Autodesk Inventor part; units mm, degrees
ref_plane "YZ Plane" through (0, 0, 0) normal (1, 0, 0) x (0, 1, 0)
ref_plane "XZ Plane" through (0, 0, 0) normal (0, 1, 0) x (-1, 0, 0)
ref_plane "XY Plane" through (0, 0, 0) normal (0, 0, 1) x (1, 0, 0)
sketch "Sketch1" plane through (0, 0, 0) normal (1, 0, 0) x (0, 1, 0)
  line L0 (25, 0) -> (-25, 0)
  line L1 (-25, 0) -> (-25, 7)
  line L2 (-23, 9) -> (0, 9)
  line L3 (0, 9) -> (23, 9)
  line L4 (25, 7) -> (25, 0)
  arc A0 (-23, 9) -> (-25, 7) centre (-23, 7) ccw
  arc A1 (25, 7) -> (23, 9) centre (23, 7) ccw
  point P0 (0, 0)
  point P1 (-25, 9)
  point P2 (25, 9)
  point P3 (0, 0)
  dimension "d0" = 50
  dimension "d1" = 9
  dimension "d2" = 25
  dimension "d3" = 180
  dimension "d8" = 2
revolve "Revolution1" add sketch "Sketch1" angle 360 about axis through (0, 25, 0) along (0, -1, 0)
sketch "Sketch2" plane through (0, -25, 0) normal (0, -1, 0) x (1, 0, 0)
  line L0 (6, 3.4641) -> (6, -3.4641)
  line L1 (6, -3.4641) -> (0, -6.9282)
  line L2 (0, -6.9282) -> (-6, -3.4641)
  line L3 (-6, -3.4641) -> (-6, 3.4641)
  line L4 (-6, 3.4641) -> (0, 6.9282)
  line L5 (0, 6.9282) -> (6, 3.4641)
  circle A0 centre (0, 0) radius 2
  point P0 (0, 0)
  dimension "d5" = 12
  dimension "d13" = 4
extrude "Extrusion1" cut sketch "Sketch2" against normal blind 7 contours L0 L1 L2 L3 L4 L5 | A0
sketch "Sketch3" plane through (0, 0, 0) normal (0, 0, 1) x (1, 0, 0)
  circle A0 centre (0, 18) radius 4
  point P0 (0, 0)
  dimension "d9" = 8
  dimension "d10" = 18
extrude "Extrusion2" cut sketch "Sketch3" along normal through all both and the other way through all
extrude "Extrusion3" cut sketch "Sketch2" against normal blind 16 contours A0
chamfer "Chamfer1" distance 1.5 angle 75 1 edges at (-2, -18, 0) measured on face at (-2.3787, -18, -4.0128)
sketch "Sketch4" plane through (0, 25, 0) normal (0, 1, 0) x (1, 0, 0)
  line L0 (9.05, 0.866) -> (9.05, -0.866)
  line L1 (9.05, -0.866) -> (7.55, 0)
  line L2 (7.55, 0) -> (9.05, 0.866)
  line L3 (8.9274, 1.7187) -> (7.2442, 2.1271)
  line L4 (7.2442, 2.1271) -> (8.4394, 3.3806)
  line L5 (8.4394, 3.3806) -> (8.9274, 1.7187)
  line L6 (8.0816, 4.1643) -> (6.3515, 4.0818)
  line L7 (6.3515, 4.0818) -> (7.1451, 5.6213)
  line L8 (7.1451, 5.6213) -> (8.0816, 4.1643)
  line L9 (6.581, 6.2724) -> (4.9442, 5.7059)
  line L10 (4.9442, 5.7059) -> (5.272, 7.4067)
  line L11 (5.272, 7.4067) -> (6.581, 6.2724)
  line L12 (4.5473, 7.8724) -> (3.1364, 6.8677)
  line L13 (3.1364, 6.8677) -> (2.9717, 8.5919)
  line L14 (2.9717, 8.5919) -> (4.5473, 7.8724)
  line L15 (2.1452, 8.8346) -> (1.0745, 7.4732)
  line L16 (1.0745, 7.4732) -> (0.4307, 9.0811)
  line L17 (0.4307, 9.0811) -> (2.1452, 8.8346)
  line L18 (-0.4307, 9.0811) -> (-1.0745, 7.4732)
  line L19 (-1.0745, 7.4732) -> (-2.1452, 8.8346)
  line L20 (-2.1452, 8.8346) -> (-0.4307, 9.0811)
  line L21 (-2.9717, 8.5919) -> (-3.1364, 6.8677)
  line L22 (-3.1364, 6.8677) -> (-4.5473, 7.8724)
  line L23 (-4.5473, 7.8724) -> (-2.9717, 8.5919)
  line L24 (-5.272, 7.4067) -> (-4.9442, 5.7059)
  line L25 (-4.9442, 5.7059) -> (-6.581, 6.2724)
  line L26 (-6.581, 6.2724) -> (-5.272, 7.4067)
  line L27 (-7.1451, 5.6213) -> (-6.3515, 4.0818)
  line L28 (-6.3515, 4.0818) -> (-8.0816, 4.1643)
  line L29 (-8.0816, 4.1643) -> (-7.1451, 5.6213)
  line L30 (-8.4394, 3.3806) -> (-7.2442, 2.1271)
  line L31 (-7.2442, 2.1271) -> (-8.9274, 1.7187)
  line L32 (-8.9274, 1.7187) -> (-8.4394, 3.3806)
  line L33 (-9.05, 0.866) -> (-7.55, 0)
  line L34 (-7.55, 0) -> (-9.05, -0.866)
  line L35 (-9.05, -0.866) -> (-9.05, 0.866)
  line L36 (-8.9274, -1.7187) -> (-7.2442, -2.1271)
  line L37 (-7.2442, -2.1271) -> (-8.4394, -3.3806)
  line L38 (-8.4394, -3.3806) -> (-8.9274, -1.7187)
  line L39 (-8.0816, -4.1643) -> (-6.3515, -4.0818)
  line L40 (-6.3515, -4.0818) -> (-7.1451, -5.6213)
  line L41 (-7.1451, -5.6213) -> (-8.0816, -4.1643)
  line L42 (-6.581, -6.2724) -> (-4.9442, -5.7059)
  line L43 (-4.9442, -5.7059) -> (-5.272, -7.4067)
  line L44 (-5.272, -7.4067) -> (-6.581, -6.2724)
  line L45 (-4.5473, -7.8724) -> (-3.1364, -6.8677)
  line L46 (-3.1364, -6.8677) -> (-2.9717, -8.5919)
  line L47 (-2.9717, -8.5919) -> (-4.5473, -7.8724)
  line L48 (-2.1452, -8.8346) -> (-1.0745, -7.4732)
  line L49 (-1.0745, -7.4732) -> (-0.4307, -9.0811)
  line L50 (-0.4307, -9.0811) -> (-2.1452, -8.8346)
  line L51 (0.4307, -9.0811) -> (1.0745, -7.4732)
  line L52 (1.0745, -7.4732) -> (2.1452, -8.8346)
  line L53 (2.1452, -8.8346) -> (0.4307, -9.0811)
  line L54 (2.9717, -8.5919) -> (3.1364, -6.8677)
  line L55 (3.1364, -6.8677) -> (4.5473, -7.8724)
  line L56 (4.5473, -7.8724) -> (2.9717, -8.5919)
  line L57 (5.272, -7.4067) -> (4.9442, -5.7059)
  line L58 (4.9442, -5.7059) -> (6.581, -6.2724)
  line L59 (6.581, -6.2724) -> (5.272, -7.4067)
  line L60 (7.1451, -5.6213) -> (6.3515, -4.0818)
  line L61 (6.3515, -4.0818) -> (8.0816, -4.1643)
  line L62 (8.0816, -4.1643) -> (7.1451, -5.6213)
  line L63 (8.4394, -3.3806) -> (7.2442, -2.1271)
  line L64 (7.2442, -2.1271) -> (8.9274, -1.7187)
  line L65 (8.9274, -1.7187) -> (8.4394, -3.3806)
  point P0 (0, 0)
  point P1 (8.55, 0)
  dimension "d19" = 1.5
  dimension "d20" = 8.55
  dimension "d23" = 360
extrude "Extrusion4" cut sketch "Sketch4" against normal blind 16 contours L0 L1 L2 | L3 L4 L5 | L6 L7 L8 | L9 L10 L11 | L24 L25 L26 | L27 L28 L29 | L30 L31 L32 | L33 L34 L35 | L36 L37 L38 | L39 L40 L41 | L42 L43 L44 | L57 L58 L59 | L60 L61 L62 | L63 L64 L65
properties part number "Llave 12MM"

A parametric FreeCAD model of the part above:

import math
import FreeCAD as App
import Part
import Sketcher
Q = App.Units.Quantity


def edges_at(feature, points):
    """Names of the edges that pass closest to the given points."""
    edges = feature.Shape.Edges
    near = lambda p: min(range(len(edges)), key=lambda i: edges[i].distToShape(Part.Vertex(*p))[0])
    return sorted({f"Edge{near(p) + 1}" for p in points})

doc = App.newDocument("Part")
params = doc.addObject("Spreadsheet::Sheet", "Params")
for row, (alias, value) in enumerate([
    ("sketch1_radius", "2 mm"),
    ("sketch1_width", "50 mm"),
    ("revolution_angle", "360 deg"),
    ("pocket1_length", "7 mm"),
    ("sketch3_diameter", "8 mm"),
    ("sketch4_diameter", "4 mm"),
    ("pocket3_length", "16 mm"),
    ("chamfer_size", "1.5 mm"),
    ("pocket4_length", "16 mm"),
], start=1):
    params.set(f"A{row}", alias)
    params.set(f"B{row}", "=" + value)
    params.setAlias(f"B{row}", alias)

body = doc.addObject("PartDesign::Body", "Body")

# Sketch on YZ plane
sketch1 = body.newObject("Sketcher::SketchObject", "Sketch")
sketch1.AttachmentSupport = (doc.getObject("YZ_Plane"), [""])
sketch1.MapMode = "FlatFace"
sketch1.addGeometry([
    Part.LineSegment(App.Vector(-25, 0, 0), App.Vector(25, 0, 0)),  # 0
    Part.LineSegment(App.Vector(25, 0, 0), App.Vector(25, 7, 0)),  # 1
    Part.ArcOfCircle(Part.Circle(App.Vector(23, 7, 0), App.Vector(0, 0, 1), 2), math.radians(0), math.radians(90)),  # 2
    Part.LineSegment(App.Vector(23, 9, 0), App.Vector(-23, 9, 0)),  # 3
    Part.ArcOfCircle(Part.Circle(App.Vector(-23, 7, 0), App.Vector(0, 0, 1), 2), math.radians(90), math.radians(180)),  # 4
    Part.LineSegment(App.Vector(-25, 7, 0), App.Vector(-25, 0, 0)),  # 5
], False)
sketch1.addConstraint([
    Sketcher.Constraint("Coincident", 0, 2, 1, 1),
    Sketcher.Constraint("Tangent", 1, 2, 2, 1),
    Sketcher.Constraint("Tangent", 2, 2, 3, 1),
    Sketcher.Constraint("Tangent", 3, 2, 4, 1),
    Sketcher.Constraint("Tangent", 4, 2, 5, 1),
    Sketcher.Constraint("Coincident", 5, 2, 0, 1),
    Sketcher.Constraint("Horizontal", 0),
    Sketcher.Constraint("Vertical", 1),
    Sketcher.Constraint("Horizontal", 3),
    Sketcher.Constraint("Vertical", 5),
    Sketcher.Constraint("Equal", 2, 4),
    Sketcher.Constraint("Symmetric", 0, 2, 5, 2, -1, 1),
    Sketcher.Constraint("Radius", 2, 2.0),
    Sketcher.Constraint("DistanceX", 0, 1, 0, 2, 50.0),
    Sketcher.Constraint("DistanceY", -1, 1, 2, 2, 9.0),
])
sketch1.setExpression("Constraints[12]", "Params.sketch1_radius")
sketch1.setExpression("Constraints[13]", "Params.sketch1_width")
revolution = body.newObject("PartDesign::Revolution", "Revolution")
revolution.Profile = sketch1
revolution.ReferenceAxis = (sketch1, ["H_Axis"])
revolution.setExpression("Angle", "Params.revolution_angle")

# Sketch on XZ plane
sketch2 = body.newObject("Sketcher::SketchObject", "Sketch001")
sketch2.AttachmentSupport = (doc.getObject("XZ_Plane"), [""])
sketch2.MapMode = "FlatFace"
sketch2.AttachmentOffset = App.Placement(App.Vector(0, 0, 25), App.Rotation())
sketch2.addGeometry([
    Part.LineSegment(App.Vector(6, -3.4641, 0), App.Vector(6, 3.4641, 0)),  # 0
    Part.LineSegment(App.Vector(6, 3.4641, 0), App.Vector(0, 6.9282, 0)),  # 1
    Part.LineSegment(App.Vector(0, 6.9282, 0), App.Vector(-6, 3.4641, 0)),  # 2
    Part.LineSegment(App.Vector(-6, 3.4641, 0), App.Vector(-6, -3.4641, 0)),  # 3
    Part.LineSegment(App.Vector(-6, -3.4641, 0), App.Vector(0, -6.9282, 0)),  # 4
    Part.LineSegment(App.Vector(0, -6.9282, 0), App.Vector(6, -3.4641, 0)),  # 5
], False)
sketch2.addConstraint([
    Sketcher.Constraint("Coincident", 0, 2, 1, 1),
    Sketcher.Constraint("Coincident", 1, 2, 2, 1),
    Sketcher.Constraint("Coincident", 2, 2, 3, 1),
    Sketcher.Constraint("Coincident", 3, 2, 4, 1),
    Sketcher.Constraint("Coincident", 4, 2, 5, 1),
    Sketcher.Constraint("Coincident", 5, 2, 0, 1),
    Sketcher.Constraint("Vertical", 0),
    Sketcher.Constraint("Vertical", 3),
    Sketcher.Constraint("Symmetric", 0, 2, 3, 2, -1, 1),
    Sketcher.Constraint("Symmetric", 1, 2, 4, 2, -1, 1),
    Sketcher.Constraint("PointOnObject", 1, 2, -2),
    Sketcher.Constraint("Parallel", 2, 5),
    Sketcher.Constraint("Horizontal", 0, 2, 2, 2),
    Sketcher.Constraint("DistanceX", 2, 2, 0, 2, 12.0),
    Sketcher.Constraint("Angle", 1, Q("150 deg")),
    Sketcher.Constraint("DistanceY", 0, 1, 0, 2, 6.9282),
])
pocket1 = body.newObject("PartDesign::Pocket", "Pocket")
pocket1.Profile = sketch2
pocket1.setExpression("Length", "Params.pocket1_length")

# Sketch on XY plane
sketch3 = body.newObject("Sketcher::SketchObject", "Sketch002")
sketch3.AttachmentSupport = (doc.getObject("XY_Plane"), [""])
sketch3.MapMode = "FlatFace"
sketch3.addGeometry(Part.Circle(App.Vector(0, 18, 0), App.Vector(0, 0, 1), 4), False)
sketch3.addConstraint([
    Sketcher.Constraint("PointOnObject", 0, 3, -2),
    Sketcher.Constraint("Diameter", 0, 8.0),
    Sketcher.Constraint("DistanceY", -1, 1, 0, 3, 18.0),
])
sketch3.setExpression("Constraints[1]", "Params.sketch3_diameter")
pocket2 = body.newObject("PartDesign::Pocket", "Pocket001")
pocket2.Profile = sketch3
pocket2.Type = "ThroughAll"
pocket2.Midplane = True

# Sketch on XZ plane
sketch4 = body.newObject("Sketcher::SketchObject", "Sketch003")
sketch4.AttachmentSupport = (doc.getObject("XZ_Plane"), [""])
sketch4.MapMode = "FlatFace"
sketch4.AttachmentOffset = App.Placement(App.Vector(0, 0, 25), App.Rotation())
sketch4.addGeometry(Part.Circle(App.Vector(0, 0, 0), App.Vector(0, 0, 1), 2), False)
sketch4.addConstraint([
    Sketcher.Constraint("Coincident", 0, 3, -1, 1),
    Sketcher.Constraint("Diameter", 0, 4.0),
])
sketch4.setExpression("Constraints[1]", "Params.sketch4_diameter")
pocket3 = body.newObject("PartDesign::Pocket", "Pocket002")
pocket3.Profile = sketch4
pocket3.setExpression("Length", "Params.pocket3_length")
doc.recompute()

chamfer = body.newObject("PartDesign::Chamfer", "Chamfer")
chamfer.Base = (pocket3, edges_at(pocket3, [(-2, -18, 0)]))
chamfer.ChamferType = "Distance and Angle"
chamfer.setExpression("Size", "Params.chamfer_size")
chamfer.Angle = 75

# Sketch on XZ plane
sketch5 = body.newObject("Sketcher::SketchObject", "Sketch004")
sketch5.AttachmentSupport = (doc.getObject("XZ_Plane"), [""])
sketch5.MapMode = "FlatFace"
sketch5.AttachmentOffset = App.Placement(App.Vector(0, 0, -25), App.Rotation())
sketch5.addGeometry([
    Part.LineSegment(App.Vector(9.05, 0.866, 0), App.Vector(9.05, -0.866, 0)),  # 0
    Part.LineSegment(App.Vector(9.05, -0.866, 0), App.Vector(7.55, 0, 0)),  # 1
    Part.LineSegment(App.Vector(7.55, 0, 0), App.Vector(9.05, 0.866, 0)),  # 2
    Part.LineSegment(App.Vector(7.2442, -2.1271, 0), App.Vector(8.9274, -1.7187, 0)),  # 3
    Part.LineSegment(App.Vector(8.9274, -1.7187, 0), App.Vector(8.4394, -3.3806, 0)),  # 4
    Part.LineSegment(App.Vector(8.4394, -3.3806, 0), App.Vector(7.2442, -2.1271, 0)),  # 5
    Part.LineSegment(App.Vector(6.3515, -4.0818, 0), App.Vector(8.0816, -4.1643, 0)),  # 6
    Part.LineSegment(App.Vector(8.0816, -4.1643, 0), App.Vector(7.1451, -5.6213, 0)),  # 7
    Part.LineSegment(App.Vector(7.1451, -5.6213, 0), App.Vector(6.3515, -4.0818, 0)),  # 8
    Part.LineSegment(App.Vector(4.9442, -5.7059, 0), App.Vector(6.581, -6.2724, 0)),  # 9
    Part.LineSegment(App.Vector(6.581, -6.2724, 0), App.Vector(5.272, -7.4067, 0)),  # 10
    Part.LineSegment(App.Vector(5.272, -7.4067, 0), App.Vector(4.9442, -5.7059, 0)),  # 11
    Part.LineSegment(App.Vector(-4.9442, -5.7059, 0), App.Vector(-5.272, -7.4067, 0)),  # 12
    Part.LineSegment(App.Vector(-5.272, -7.4067, 0), App.Vector(-6.581, -6.2724, 0)),  # 13
    Part.LineSegment(App.Vector(-6.581, -6.2724, 0), App.Vector(-4.9442, -5.7059, 0)),  # 14
    Part.LineSegment(App.Vector(-6.3515, -4.0818, 0), App.Vector(-7.1451, -5.6213, 0)),  # 15
    Part.LineSegment(App.Vector(-7.1451, -5.6213, 0), App.Vector(-8.0816, -4.1643, 0)),  # 16
    Part.LineSegment(App.Vector(-8.0816, -4.1643, 0), App.Vector(-6.3515, -4.0818, 0)),  # 17
    Part.LineSegment(App.Vector(-7.2442, -2.1271, 0), App.Vector(-8.4394, -3.3806, 0)),  # 18
    Part.LineSegment(App.Vector(-8.4394, -3.3806, 0), App.Vector(-8.9274, -1.7187, 0)),  # 19
    Part.LineSegment(App.Vector(-8.9274, -1.7187, 0), App.Vector(-7.2442, -2.1271, 0)),  # 20
    Part.LineSegment(App.Vector(-7.55, 0, 0), App.Vector(-9.05, -0.866, 0)),  # 21
    Part.LineSegment(App.Vector(-9.05, -0.866, 0), App.Vector(-9.05, 0.866, 0)),  # 22
    Part.LineSegment(App.Vector(-9.05, 0.866, 0), App.Vector(-7.55, 0, 0)),  # 23
    Part.LineSegment(App.Vector(-7.2442, 2.1271, 0), App.Vector(-8.9274, 1.7187, 0)),  # 24
    Part.LineSegment(App.Vector(-8.9274, 1.7187, 0), App.Vector(-8.4394, 3.3806, 0)),  # 25
    Part.LineSegment(App.Vector(-8.4394, 3.3806, 0), App.Vector(-7.2442, 2.1271, 0)),  # 26
    Part.LineSegment(App.Vector(-6.3515, 4.0818, 0), App.Vector(-8.0816, 4.1643, 0)),  # 27
    Part.LineSegment(App.Vector(-8.0816, 4.1643, 0), App.Vector(-7.1451, 5.6213, 0)),  # 28
    Part.LineSegment(App.Vector(-7.1451, 5.6213, 0), App.Vector(-6.3515, 4.0818, 0)),  # 29
    Part.LineSegment(App.Vector(-4.9442, 5.7059, 0), App.Vector(-6.581, 6.2724, 0)),  # 30
    Part.LineSegment(App.Vector(-6.581, 6.2724, 0), App.Vector(-5.272, 7.4067, 0)),  # 31
    Part.LineSegment(App.Vector(-5.272, 7.4067, 0), App.Vector(-4.9442, 5.7059, 0)),  # 32
    Part.LineSegment(App.Vector(4.9442, 5.7059, 0), App.Vector(5.272, 7.4067, 0)),  # 33
    Part.LineSegment(App.Vector(5.272, 7.4067, 0), App.Vector(6.581, 6.2724, 0)),  # 34
    Part.LineSegment(App.Vector(6.581, 6.2724, 0), App.Vector(4.9442, 5.7059, 0)),  # 35
    Part.LineSegment(App.Vector(6.3515, 4.0818, 0), App.Vector(7.1451, 5.6213, 0)),  # 36
    Part.LineSegment(App.Vector(7.1451, 5.6213, 0), App.Vector(8.0816, 4.1643, 0)),  # 37
    Part.LineSegment(App.Vector(8.0816, 4.1643, 0), App.Vector(6.3515, 4.0818, 0)),  # 38
    Part.LineSegment(App.Vector(7.2442, 2.1271, 0), App.Vector(8.4394, 3.3806, 0)),  # 39
    Part.LineSegment(App.Vector(8.4394, 3.3806, 0), App.Vector(8.9274, 1.7187, 0)),  # 40
    Part.LineSegment(App.Vector(8.9274, 1.7187, 0), App.Vector(7.2442, 2.1271, 0)),  # 41
], False)
sketch5.addConstraint([
    Sketcher.Constraint("Coincident", 0, 2, 1, 1),
    Sketcher.Constraint("Coincident", 1, 2, 2, 1),
    Sketcher.Constraint("Coincident", 2, 2, 0, 1),
    Sketcher.Constraint("Coincident", 3, 2, 4, 1),
    Sketcher.Constraint("Coincident", 4, 2, 5, 1),
    Sketcher.Constraint("Coincident", 5, 2, 3, 1),
    Sketcher.Constraint("Coincident", 6, 2, 7, 1),
    Sketcher.Constraint("Coincident", 7, 2, 8, 1),
    Sketcher.Constraint("Coincident", 8, 2, 6, 1),
    Sketcher.Constraint("Coincident", 9, 2, 10, 1),
    Sketcher.Constraint("Coincident", 10, 2, 11, 1),
    Sketcher.Constraint("Coincident", 11, 2, 9, 1),
    Sketcher.Constraint("Coincident", 12, 2, 13, 1),
    Sketcher.Constraint("Coincident", 13, 2, 14, 1),
    Sketcher.Constraint("Coincident", 14, 2, 12, 1),
    Sketcher.Constraint("Coincident", 15, 2, 16, 1),
    Sketcher.Constraint("Coincident", 16, 2, 17, 1),
    Sketcher.Constraint("Coincident", 17, 2, 15, 1),
    Sketcher.Constraint("Coincident", 18, 2, 19, 1),
    Sketcher.Constraint("Coincident", 19, 2, 20, 1),
    Sketcher.Constraint("Coincident", 20, 2, 18, 1),
    Sketcher.Constraint("Coincident", 21, 2, 22, 1),
    Sketcher.Constraint("Coincident", 22, 2, 23, 1),
    Sketcher.Constraint("Coincident", 23, 2, 21, 1),
    Sketcher.Constraint("Coincident", 24, 2, 25, 1),
    Sketcher.Constraint("Coincident", 25, 2, 26, 1),
    Sketcher.Constraint("Coincident", 26, 2, 24, 1),
    Sketcher.Constraint("Coincident", 27, 2, 28, 1),
    Sketcher.Constraint("Coincident", 28, 2, 29, 1),
    Sketcher.Constraint("Coincident", 29, 2, 27, 1),
    Sketcher.Constraint("Coincident", 30, 2, 31, 1),
    Sketcher.Constraint("Coincident", 31, 2, 32, 1),
    Sketcher.Constraint("Coincident", 32, 2, 30, 1),
    Sketcher.Constraint("Coincident", 33, 2, 34, 1),
    Sketcher.Constraint("Coincident", 34, 2, 35, 1),
    Sketcher.Constraint("Coincident", 35, 2, 33, 1),
    Sketcher.Constraint("Coincident", 36, 2, 37, 1),
    Sketcher.Constraint("Coincident", 37, 2, 38, 1),
    Sketcher.Constraint("Coincident", 38, 2, 36, 1),
    Sketcher.Constraint("Coincident", 39, 2, 40, 1),
    Sketcher.Constraint("Coincident", 40, 2, 41, 1),
    Sketcher.Constraint("Coincident", 41, 2, 39, 1),
    Sketcher.Constraint("Vertical", 0),
    Sketcher.Constraint("Vertical", 22),
    Sketcher.Constraint("Symmetric", 2, 2, 21, 2, -1, 1),
    Sketcher.Constraint("Symmetric", 1, 2, 23, 2, -1, 1),
    Sketcher.Constraint("Symmetric", 3, 2, 24, 2, -1, 1),
    Sketcher.Constraint("Symmetric", 4, 2, 25, 2, -1, 1),
    Sketcher.Constraint("Symmetric", 5, 2, 26, 2, -1, 1),
    Sketcher.Constraint("Symmetric", 6, 2, 27, 2, -1, 1),
    Sketcher.Constraint("Symmetric", 7, 2, 28, 2, -1, 1),
    Sketcher.Constraint("Symmetric", 8, 2, 29, 2, -1, 1),
    Sketcher.Constraint("Symmetric", 9, 2, 30, 2, -1, 1),
    Sketcher.Constraint("Symmetric", 10, 2, 31, 2, -1, 1),
    Sketcher.Constraint("Symmetric", 11, 2, 32, 2, -1, 1),
    Sketcher.Constraint("Symmetric", 12, 2, 33, 2, -1, 1),
    Sketcher.Constraint("Symmetric", 13, 2, 34, 2, -1, 1),
    Sketcher.Constraint("Symmetric", 14, 2, 35, 2, -1, 1),
    Sketcher.Constraint("Symmetric", 15, 2, 36, 2, -1, 1),
    Sketcher.Constraint("Symmetric", 16, 2, 37, 2, -1, 1),
    Sketcher.Constraint("Symmetric", 17, 2, 38, 2, -1, 1),
    Sketcher.Constraint("Symmetric", 18, 2, 39, 2, -1, 1),
    Sketcher.Constraint("Symmetric", 19, 2, 40, 2, -1, 1),
    Sketcher.Constraint("Symmetric", 20, 2, 41, 2, -1, 1),
    Sketcher.Constraint("Symmetric", 10, 2, 12, 2, -2),
    Sketcher.Constraint("Symmetric", 9, 2, 13, 2, -2),
    Sketcher.Constraint("Symmetric", 11, 2, 14, 2, -2),
    Sketcher.Constraint("Symmetric", 7, 2, 15, 2, -2),
    Sketcher.Constraint("Symmetric", 6, 2, 16, 2, -2),
    Sketcher.Constraint("Symmetric", 8, 2, 17, 2, -2),
    Sketcher.Constraint("Symmetric", 4, 2, 18, 2, -2),
    Sketcher.Constraint("Symmetric", 3, 2, 19, 2, -2),
    Sketcher.Constraint("Symmetric", 5, 2, 20, 2, -2),
    Sketcher.Constraint("PointOnObject", 1, 2, -1),
    Sketcher.Constraint("Parallel", 1, 23),
    Sketcher.Constraint("Horizontal", 0, 2, 21, 2),
    Sketcher.Constraint("Equal", 2, 3),
    Sketcher.Constraint("Equal", 3, 4),
    Sketcher.Constraint("Equal", 4, 5),
    Sketcher.Constraint("Equal", 5, 6),
    Sketcher.Constraint("Equal", 6, 7),
    Sketcher.Constraint("Equal", 7, 8),
    Sketcher.Constraint("Equal", 8, 9),
    Sketcher.Constraint("Equal", 9, 10),
    Sketcher.Constraint("Equal", 10, 11),
    Sketcher.Constraint("DistanceX", 1, 2, 0, 2, 1.5),
    Sketcher.Constraint("Angle", 1, Q("150.0007 deg")),
    Sketcher.Constraint("Angle", 6, Q("-2.73 deg")),
    Sketcher.Constraint("Angle", 9, Q("-19.0908 deg")),
    Sketcher.Constraint("DistanceX", 9, 2, 6, 2, 1.5006),
    Sketcher.Constraint("DistanceX", -1, 1, 0, 2, 9.05),
    Sketcher.Constraint("DistanceY", 2, 2, 35, 2, 4.84),
    Sketcher.Constraint("DistanceY", 5, 2, -1, 1, 2.127),
    Sketcher.Constraint("DistanceX", -1, 1, 7, 2, 7.145),
    Sketcher.Constraint("DistanceX", 4, 2, 3, 2, 0.488),
    Sketcher.Constraint("DistanceX", 7, 2, 5, 2, 0.099),
    Sketcher.Constraint("DistanceY", 8, 2, 3, 2, 2.363),
])
pocket4 = body.newObject("PartDesign::Pocket", "Pocket003")
pocket4.Profile = sketch5
pocket4.setExpression("Length", "Params.pocket4_length")
pocket4.Reversed = True

doc.recompute()
